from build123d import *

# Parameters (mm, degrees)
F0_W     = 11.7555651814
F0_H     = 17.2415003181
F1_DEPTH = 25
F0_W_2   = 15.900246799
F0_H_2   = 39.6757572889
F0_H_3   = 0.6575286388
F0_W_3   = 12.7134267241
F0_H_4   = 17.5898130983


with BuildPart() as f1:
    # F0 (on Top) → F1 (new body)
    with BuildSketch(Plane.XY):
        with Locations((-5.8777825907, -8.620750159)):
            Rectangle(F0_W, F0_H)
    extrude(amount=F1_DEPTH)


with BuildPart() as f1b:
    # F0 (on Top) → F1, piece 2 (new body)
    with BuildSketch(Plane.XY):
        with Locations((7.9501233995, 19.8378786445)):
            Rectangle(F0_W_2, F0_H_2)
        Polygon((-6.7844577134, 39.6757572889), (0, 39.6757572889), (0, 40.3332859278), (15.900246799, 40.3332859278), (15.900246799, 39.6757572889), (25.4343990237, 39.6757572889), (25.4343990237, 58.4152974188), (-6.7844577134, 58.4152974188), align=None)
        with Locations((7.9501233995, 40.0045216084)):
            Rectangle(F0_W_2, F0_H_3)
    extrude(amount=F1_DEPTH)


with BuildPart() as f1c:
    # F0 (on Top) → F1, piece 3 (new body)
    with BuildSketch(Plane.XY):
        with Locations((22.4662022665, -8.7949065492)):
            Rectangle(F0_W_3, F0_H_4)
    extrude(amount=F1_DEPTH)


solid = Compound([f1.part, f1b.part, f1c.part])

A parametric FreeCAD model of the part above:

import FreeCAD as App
import Part
import Sketcher
Q = App.Units.Quantity

doc = App.newDocument("Part")
params = doc.addObject("Spreadsheet::Sheet", "Params")
for row, (alias, value) in enumerate([
    ("pad1_length", "25 mm"),
    ("pad2_length", "25 mm"),
    ("pad3_length", "25 mm"),
], start=1):
    params.set(f"A{row}", alias)
    params.set(f"B{row}", "=" + value)
    params.setAlias(f"B{row}", alias)

body = doc.addObject("PartDesign::Body", "Body")

sketch1 = doc.addObject("Sketcher::SketchObject", "Sketch")
body.addObject(sketch1)
sketch1.AttachmentSupport = (doc.XY_Plane, [""])
sketch1.MapMode = "FlatFace"
sketch1.addGeometry([
    Part.LineSegment(App.Vector(-12, 0, 0), App.Vector(-12, -17, 0)),
    Part.LineSegment(App.Vector(-12, -17, 0), App.Vector(0, -17, 0)),
    Part.LineSegment(App.Vector(0, -17, 0), App.Vector(0, 0, 0)),
    Part.LineSegment(App.Vector(0, 0, 0), App.Vector(-12, 0, 0)),
], False)
sketch1.addConstraint([
    Sketcher.Constraint("Coincident", 0, 2, 1, 1),
    Sketcher.Constraint("Coincident", 1, 2, 2, 1),
    Sketcher.Constraint("Coincident", 2, 2, 3, 1),
    Sketcher.Constraint("Coincident", 3, 2, 0, 1),
    Sketcher.Constraint("Vertical", 0),
    Sketcher.Constraint("Horizontal", 1),
    Sketcher.Constraint("Vertical", 2),
    Sketcher.Constraint("Horizontal", 3),
    Sketcher.Constraint("Coincident", 2, 2, -1, 1),
    Sketcher.Constraint("DistanceY", 0, 2, 0, 1, Q("17.2415 mm")),
    Sketcher.Constraint("DistanceX", 1, 1, 1, 2, Q("11.755565 mm")),
])
pad1 = doc.addObject("PartDesign::Pad", "Pad")
body.addObject(pad1)
pad1.Profile = sketch1
pad1.setExpression("Length", "Params.pad1_length")
body2 = doc.addObject("PartDesign::Body", "Body001")

sketch2 = doc.addObject("Sketcher::SketchObject", "Sketch001")
body2.addObject(sketch2)
sketch2.AttachmentSupport = (doc.getObject("XY_Plane001"), [""])
sketch2.MapMode = "FlatFace"
sketch2.addGeometry([
    Part.LineSegment(App.Vector(0, 40, 0), App.Vector(0, 0, 0)),
    Part.LineSegment(App.Vector(0, 0, 0), App.Vector(16, 0, 0)),
    Part.LineSegment(App.Vector(16, 0, 0), App.Vector(16, 40, 0)),
    Part.LineSegment(App.Vector(16, 40, 0), App.Vector(25, 40, 0)),
    Part.LineSegment(App.Vector(25, 40, 0), App.Vector(25, 58, 0)),
    Part.LineSegment(App.Vector(25, 58, 0), App.Vector(-7, 58, 0)),
    Part.LineSegment(App.Vector(-7, 58, 0), App.Vector(-7, 40, 0)),
    Part.LineSegment(App.Vector(-7, 40, 0), App.Vector(0, 40, 0)),
], False)
sketch2.addConstraint([
    Sketcher.Constraint("Coincident", 0, 2, 1, 1),
    Sketcher.Constraint("Coincident", 1, 2, 2, 1),
    Sketcher.Constraint("Coincident", 2, 2, 3, 1),
    Sketcher.Constraint("Coincident", 3, 2, 4, 1),
    Sketcher.Constraint("Coincident", 4, 2, 5, 1),
    Sketcher.Constraint("Coincident", 5, 2, 6, 1),
    Sketcher.Constraint("Coincident", 6, 2, 7, 1),
    Sketcher.Constraint("Coincident", 7, 2, 0, 1),
    Sketcher.Constraint("Vertical", 0),
    Sketcher.Constraint("Horizontal", 1),
    Sketcher.Constraint("Vertical", 2),
    Sketcher.Constraint("Horizontal", 3),
    Sketcher.Constraint("Vertical", 4),
    Sketcher.Constraint("Horizontal", 5),
    Sketcher.Constraint("Vertical", 6),
    Sketcher.Constraint("Horizontal", 7),
    Sketcher.Constraint("Coincident", 0, 2, -1, 1),
    Sketcher.Constraint("Horizontal", 3, 2, 6, 2),
    Sketcher.Constraint("DistanceY", 4, 1, 4, 2, Q("18.73954 mm")),
    Sketcher.Constraint("DistanceX", -1, 1, 3, 2, Q("25.434399 mm")),
    Sketcher.Constraint("DistanceX", 1, 1, 1, 2, Q("15.900247 mm")),
    Sketcher.Constraint("DistanceX", 5, 2, 5, 1, Q("32.218857 mm")),
    Sketcher.Constraint("DistanceY", 0, 2, 0, 1, Q("39.675757 mm")),
])
pad2 = doc.addObject("PartDesign::Pad", "Pad001")
body2.addObject(pad2)
pad2.Profile = sketch2
pad2.setExpression("Length", "Params.pad2_length")
body3 = doc.addObject("PartDesign::Body", "Body002")

sketch3 = doc.addObject("Sketcher::SketchObject", "Sketch002")
body3.addObject(sketch3)
sketch3.AttachmentSupport = (doc.getObject("XY_Plane002"), [""])
sketch3.MapMode = "FlatFace"
sketch3.addGeometry([
    Part.LineSegment(App.Vector(16, 0, 0), App.Vector(16, -18, 0)),
    Part.LineSegment(App.Vector(16, -18, 0), App.Vector(29, -18, 0)),
    Part.LineSegment(App.Vector(29, -18, 0), App.Vector(29, 0, 0)),
    Part.LineSegment(App.Vector(29, 0, 0), App.Vector(16, 0, 0)),
], False)
sketch3.addConstraint([
    Sketcher.Constraint("Coincident", 0, 2, 1, 1),
    Sketcher.Constraint("Coincident", 1, 2, 2, 1),
    Sketcher.Constraint("Coincident", 2, 2, 3, 1),
    Sketcher.Constraint("Coincident", 3, 2, 0, 1),
    Sketcher.Constraint("Vertical", 0),
    Sketcher.Constraint("Horizontal", 1),
    Sketcher.Constraint("Vertical", 2),
    Sketcher.Constraint("Horizontal", 3),
    Sketcher.Constraint("PointOnObject", 2, 2, -1),
    Sketcher.Constraint("DistanceX", 1, 1, 1, 2, Q("12.713427 mm")),
    Sketcher.Constraint("DistanceY", 0, 2, 0, 1, Q("17.589813 mm")),
    Sketcher.Constraint("DistanceX", -1, 1, 0, 2, Q("16.109489 mm")),
])
pad3 = doc.addObject("PartDesign::Pad", "Pad002")
body3.addObject(pad3)
pad3.Profile = sketch3
pad3.setExpression("Length", "Params.pad3_length")

doc.recompute()
